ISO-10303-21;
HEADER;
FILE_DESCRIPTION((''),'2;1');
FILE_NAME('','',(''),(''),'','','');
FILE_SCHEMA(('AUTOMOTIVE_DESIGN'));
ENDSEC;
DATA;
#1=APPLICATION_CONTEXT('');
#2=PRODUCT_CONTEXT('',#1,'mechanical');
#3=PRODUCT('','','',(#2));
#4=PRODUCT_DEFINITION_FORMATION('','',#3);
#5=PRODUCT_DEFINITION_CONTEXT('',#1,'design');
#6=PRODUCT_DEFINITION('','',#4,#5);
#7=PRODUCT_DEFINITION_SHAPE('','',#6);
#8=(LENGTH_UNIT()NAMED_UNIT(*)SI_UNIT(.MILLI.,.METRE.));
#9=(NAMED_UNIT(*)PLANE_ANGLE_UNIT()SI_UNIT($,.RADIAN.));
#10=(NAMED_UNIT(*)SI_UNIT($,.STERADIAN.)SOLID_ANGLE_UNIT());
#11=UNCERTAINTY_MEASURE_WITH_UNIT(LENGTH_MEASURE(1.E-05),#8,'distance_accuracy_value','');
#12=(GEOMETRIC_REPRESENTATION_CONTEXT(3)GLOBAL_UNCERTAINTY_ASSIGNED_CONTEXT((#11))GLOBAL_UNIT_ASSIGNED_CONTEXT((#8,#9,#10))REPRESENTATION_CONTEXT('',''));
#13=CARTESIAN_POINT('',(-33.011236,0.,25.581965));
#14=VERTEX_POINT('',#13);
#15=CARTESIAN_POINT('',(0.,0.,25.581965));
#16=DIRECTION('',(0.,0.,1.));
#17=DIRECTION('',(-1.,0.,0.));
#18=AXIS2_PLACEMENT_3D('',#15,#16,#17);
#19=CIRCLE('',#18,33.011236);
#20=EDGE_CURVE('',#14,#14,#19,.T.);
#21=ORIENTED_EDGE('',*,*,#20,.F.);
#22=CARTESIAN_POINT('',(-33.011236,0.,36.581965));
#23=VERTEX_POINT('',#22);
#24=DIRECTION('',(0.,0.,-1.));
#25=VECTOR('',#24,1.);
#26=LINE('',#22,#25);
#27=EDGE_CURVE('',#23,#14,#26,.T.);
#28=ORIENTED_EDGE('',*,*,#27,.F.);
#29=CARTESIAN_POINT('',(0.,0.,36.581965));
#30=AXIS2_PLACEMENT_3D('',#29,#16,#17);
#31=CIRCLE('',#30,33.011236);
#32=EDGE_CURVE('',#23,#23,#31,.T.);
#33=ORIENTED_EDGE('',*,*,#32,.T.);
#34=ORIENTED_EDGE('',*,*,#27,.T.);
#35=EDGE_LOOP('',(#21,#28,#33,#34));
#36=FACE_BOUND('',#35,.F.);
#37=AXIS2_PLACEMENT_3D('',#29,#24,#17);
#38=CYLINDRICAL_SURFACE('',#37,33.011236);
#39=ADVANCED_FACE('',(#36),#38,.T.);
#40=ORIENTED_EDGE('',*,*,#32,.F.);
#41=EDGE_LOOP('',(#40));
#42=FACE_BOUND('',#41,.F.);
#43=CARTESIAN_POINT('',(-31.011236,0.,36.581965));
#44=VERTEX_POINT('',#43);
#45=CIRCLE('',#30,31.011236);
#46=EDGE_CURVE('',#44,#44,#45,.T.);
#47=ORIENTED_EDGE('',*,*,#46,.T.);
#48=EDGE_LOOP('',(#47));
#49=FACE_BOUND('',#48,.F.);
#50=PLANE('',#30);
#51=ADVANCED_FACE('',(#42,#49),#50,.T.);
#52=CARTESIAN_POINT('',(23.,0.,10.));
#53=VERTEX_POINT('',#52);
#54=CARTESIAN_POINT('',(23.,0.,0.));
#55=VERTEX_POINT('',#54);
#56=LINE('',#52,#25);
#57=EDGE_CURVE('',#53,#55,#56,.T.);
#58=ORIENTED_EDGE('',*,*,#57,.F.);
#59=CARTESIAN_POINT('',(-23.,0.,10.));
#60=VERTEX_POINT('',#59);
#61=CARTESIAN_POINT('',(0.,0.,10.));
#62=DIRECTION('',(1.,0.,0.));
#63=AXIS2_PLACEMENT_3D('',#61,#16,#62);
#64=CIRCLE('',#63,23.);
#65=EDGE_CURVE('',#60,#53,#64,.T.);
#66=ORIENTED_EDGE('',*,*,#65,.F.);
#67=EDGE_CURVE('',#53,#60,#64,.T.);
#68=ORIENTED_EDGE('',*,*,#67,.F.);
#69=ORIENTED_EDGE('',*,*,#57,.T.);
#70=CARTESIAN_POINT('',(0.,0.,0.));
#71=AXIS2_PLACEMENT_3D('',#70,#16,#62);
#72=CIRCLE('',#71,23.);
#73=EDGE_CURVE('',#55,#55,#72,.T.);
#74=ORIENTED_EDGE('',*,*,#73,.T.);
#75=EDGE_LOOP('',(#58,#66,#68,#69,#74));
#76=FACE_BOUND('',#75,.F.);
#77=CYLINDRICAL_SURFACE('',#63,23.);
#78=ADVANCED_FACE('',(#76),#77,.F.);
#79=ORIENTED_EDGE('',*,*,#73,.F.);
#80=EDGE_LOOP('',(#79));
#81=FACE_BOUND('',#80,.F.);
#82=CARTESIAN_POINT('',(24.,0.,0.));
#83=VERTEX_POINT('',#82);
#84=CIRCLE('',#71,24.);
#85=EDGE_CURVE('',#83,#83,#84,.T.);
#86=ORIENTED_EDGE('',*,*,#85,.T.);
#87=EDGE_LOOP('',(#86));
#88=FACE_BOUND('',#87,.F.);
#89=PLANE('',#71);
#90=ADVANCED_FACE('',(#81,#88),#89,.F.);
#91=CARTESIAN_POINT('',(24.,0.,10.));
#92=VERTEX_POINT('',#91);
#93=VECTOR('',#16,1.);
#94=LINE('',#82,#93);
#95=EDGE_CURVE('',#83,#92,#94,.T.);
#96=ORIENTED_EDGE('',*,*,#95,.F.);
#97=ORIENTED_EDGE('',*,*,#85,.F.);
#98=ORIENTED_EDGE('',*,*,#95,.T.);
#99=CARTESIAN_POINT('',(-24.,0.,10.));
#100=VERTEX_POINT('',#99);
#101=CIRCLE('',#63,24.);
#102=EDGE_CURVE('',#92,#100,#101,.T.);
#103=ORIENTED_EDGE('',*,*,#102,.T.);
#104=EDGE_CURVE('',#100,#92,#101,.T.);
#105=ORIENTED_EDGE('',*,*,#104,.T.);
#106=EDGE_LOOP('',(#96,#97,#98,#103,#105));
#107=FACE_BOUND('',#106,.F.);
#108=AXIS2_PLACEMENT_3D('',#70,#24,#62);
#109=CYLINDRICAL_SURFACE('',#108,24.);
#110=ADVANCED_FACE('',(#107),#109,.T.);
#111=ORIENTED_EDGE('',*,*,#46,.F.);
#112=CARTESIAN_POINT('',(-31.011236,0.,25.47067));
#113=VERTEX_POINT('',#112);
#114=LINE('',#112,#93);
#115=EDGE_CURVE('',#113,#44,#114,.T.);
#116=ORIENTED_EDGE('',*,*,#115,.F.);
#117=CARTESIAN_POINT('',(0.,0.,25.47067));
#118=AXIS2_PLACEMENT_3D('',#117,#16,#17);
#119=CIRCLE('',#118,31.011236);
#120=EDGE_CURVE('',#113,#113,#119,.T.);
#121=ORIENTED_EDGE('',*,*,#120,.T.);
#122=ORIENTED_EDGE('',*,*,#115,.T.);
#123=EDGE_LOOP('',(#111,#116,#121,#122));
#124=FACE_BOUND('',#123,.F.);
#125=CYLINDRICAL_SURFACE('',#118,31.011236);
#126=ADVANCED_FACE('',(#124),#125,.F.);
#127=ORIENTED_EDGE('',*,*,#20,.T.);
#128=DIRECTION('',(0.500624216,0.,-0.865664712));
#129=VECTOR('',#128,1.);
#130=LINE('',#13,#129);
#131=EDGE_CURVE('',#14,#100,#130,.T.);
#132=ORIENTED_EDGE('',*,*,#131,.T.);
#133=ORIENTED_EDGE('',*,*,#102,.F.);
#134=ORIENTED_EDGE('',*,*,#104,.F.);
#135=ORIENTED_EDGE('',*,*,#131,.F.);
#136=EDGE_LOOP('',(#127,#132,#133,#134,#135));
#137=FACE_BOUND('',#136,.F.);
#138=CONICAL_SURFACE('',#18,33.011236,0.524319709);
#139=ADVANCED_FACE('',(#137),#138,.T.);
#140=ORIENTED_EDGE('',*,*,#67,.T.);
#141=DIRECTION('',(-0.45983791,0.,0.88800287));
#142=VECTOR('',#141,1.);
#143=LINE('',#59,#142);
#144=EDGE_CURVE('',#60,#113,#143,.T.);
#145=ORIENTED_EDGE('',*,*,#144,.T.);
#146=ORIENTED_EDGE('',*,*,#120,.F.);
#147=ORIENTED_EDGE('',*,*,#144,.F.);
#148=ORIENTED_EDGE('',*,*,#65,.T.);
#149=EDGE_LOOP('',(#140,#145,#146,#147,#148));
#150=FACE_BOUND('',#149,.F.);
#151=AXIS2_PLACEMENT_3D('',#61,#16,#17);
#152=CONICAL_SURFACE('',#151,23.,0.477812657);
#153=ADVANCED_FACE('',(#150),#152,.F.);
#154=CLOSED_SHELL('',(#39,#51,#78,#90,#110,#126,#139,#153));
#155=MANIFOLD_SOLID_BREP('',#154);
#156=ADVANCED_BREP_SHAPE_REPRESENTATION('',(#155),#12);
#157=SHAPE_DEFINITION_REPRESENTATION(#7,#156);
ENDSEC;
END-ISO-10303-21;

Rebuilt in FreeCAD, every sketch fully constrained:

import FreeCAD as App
import Part
import Sketcher
from FreeCAD import Vector


def add_polygon(sketch, points):
    """Adds a closed chain of lines whose ends are joined by coincident constraints."""
    first, n = sketch.GeometryCount, len(points)
    for a, b in zip(points, points[1:] + points[:1]):
        sketch.addGeometry(Part.LineSegment(App.Vector(*a, 0), App.Vector(*b, 0)), False)
    for i in range(n):
        sketch.addConstraint(Sketcher.Constraint("Coincident", first + i, 2, first + (i + 1) % n, 1))

doc = App.newDocument("Part")
body = doc.addObject("PartDesign::Body", "Body")

# Sketch on XY plane
sketch1 = body.newObject("Sketcher::SketchObject", "Sketch")
sketch1.AttachmentSupport = (doc.getObject("XY_Plane"), [""])
sketch1.MapMode = "FlatFace"
sketch1.addGeometry(Part.Circle(Vector(0, 0, 0), Vector(0, 0, 1), 24), False)
sketch1.addConstraint(Sketcher.Constraint("Coincident", 0, 3, -1, 1))
sketch1.addConstraint(Sketcher.Constraint("Diameter", 0, 48.0))
pad1 = body.newObject("PartDesign::Pad", "Pad")
pad1.Profile = sketch1
pad1.Length = 10

# Sketch on XY plane
sketch2 = body.newObject("Sketcher::SketchObject", "Sketch001")
sketch2.AttachmentSupport = (doc.getObject("XY_Plane"), [""])
sketch2.MapMode = "FlatFace"
sketch2.AttachmentOffset = App.Placement(Vector(0, 0, 10), App.Rotation())
sketch2.addGeometry(Part.Circle(Vector(0, 0, 0), Vector(0, 0, 1), 23), False)
sketch2.addConstraint(Sketcher.Constraint("Coincident", 0, 3, -1, 1))
sketch2.addConstraint(Sketcher.Constraint("Diameter", 0, 46.0))
pocket1 = body.newObject("PartDesign::Pocket", "Pocket")
pocket1.Profile = sketch2
pocket1.Type = "ThroughAll"

# Sketch on XZ plane
sketch3 = body.newObject("Sketcher::SketchObject", "Sketch002")
sketch3.AttachmentSupport = (doc.getObject("XZ_Plane"), [""])
sketch3.MapMode = "FlatFace"
add_polygon(sketch3, [(-23, 10), (-31, 25.5), (-31, 36.6), (-33, 36.6), (-33, 25.6), (-24, 10)])  # lines 0-5
sketch3.addConstraint(Sketcher.Constraint("Vertical", 1))
sketch3.addConstraint(Sketcher.Constraint("Horizontal", 2))
sketch3.addConstraint(Sketcher.Constraint("Vertical", 3))
sketch3.addConstraint(Sketcher.Constraint("Horizontal", 5))
sketch3.addConstraint(Sketcher.Constraint("DistanceX", 2, 2, 2, 1, 2.0))
sketch3.addConstraint(Sketcher.Constraint("DistanceX", 5, 1, 5, 2, 1.0))
sketch3.addConstraint(Sketcher.Constraint("DistanceY", 3, 2, 3, 1, 11.0))
sketch3.addConstraint(Sketcher.Constraint("Distance", 4, 18.0))
sketch3.addConstraint(Sketcher.Constraint("DistanceX", 4, 2, -1, 1, 24.0))
sketch3.addConstraint(Sketcher.Constraint("DistanceY", -1, 1, 4, 2, 10.0))
sketch3.addConstraint(Sketcher.Constraint("Distance", 0, 17.421869))
sketch3.addConstraint(Sketcher.Constraint("DistanceY", 1, 1, 1, 2, 11.111295))
revolution = body.newObject("PartDesign::Revolution", "Revolution")
revolution.Profile = sketch3
revolution.ReferenceAxis = (sketch3, ["V_Axis"])
revolution.Angle = 360

doc.recompute()
